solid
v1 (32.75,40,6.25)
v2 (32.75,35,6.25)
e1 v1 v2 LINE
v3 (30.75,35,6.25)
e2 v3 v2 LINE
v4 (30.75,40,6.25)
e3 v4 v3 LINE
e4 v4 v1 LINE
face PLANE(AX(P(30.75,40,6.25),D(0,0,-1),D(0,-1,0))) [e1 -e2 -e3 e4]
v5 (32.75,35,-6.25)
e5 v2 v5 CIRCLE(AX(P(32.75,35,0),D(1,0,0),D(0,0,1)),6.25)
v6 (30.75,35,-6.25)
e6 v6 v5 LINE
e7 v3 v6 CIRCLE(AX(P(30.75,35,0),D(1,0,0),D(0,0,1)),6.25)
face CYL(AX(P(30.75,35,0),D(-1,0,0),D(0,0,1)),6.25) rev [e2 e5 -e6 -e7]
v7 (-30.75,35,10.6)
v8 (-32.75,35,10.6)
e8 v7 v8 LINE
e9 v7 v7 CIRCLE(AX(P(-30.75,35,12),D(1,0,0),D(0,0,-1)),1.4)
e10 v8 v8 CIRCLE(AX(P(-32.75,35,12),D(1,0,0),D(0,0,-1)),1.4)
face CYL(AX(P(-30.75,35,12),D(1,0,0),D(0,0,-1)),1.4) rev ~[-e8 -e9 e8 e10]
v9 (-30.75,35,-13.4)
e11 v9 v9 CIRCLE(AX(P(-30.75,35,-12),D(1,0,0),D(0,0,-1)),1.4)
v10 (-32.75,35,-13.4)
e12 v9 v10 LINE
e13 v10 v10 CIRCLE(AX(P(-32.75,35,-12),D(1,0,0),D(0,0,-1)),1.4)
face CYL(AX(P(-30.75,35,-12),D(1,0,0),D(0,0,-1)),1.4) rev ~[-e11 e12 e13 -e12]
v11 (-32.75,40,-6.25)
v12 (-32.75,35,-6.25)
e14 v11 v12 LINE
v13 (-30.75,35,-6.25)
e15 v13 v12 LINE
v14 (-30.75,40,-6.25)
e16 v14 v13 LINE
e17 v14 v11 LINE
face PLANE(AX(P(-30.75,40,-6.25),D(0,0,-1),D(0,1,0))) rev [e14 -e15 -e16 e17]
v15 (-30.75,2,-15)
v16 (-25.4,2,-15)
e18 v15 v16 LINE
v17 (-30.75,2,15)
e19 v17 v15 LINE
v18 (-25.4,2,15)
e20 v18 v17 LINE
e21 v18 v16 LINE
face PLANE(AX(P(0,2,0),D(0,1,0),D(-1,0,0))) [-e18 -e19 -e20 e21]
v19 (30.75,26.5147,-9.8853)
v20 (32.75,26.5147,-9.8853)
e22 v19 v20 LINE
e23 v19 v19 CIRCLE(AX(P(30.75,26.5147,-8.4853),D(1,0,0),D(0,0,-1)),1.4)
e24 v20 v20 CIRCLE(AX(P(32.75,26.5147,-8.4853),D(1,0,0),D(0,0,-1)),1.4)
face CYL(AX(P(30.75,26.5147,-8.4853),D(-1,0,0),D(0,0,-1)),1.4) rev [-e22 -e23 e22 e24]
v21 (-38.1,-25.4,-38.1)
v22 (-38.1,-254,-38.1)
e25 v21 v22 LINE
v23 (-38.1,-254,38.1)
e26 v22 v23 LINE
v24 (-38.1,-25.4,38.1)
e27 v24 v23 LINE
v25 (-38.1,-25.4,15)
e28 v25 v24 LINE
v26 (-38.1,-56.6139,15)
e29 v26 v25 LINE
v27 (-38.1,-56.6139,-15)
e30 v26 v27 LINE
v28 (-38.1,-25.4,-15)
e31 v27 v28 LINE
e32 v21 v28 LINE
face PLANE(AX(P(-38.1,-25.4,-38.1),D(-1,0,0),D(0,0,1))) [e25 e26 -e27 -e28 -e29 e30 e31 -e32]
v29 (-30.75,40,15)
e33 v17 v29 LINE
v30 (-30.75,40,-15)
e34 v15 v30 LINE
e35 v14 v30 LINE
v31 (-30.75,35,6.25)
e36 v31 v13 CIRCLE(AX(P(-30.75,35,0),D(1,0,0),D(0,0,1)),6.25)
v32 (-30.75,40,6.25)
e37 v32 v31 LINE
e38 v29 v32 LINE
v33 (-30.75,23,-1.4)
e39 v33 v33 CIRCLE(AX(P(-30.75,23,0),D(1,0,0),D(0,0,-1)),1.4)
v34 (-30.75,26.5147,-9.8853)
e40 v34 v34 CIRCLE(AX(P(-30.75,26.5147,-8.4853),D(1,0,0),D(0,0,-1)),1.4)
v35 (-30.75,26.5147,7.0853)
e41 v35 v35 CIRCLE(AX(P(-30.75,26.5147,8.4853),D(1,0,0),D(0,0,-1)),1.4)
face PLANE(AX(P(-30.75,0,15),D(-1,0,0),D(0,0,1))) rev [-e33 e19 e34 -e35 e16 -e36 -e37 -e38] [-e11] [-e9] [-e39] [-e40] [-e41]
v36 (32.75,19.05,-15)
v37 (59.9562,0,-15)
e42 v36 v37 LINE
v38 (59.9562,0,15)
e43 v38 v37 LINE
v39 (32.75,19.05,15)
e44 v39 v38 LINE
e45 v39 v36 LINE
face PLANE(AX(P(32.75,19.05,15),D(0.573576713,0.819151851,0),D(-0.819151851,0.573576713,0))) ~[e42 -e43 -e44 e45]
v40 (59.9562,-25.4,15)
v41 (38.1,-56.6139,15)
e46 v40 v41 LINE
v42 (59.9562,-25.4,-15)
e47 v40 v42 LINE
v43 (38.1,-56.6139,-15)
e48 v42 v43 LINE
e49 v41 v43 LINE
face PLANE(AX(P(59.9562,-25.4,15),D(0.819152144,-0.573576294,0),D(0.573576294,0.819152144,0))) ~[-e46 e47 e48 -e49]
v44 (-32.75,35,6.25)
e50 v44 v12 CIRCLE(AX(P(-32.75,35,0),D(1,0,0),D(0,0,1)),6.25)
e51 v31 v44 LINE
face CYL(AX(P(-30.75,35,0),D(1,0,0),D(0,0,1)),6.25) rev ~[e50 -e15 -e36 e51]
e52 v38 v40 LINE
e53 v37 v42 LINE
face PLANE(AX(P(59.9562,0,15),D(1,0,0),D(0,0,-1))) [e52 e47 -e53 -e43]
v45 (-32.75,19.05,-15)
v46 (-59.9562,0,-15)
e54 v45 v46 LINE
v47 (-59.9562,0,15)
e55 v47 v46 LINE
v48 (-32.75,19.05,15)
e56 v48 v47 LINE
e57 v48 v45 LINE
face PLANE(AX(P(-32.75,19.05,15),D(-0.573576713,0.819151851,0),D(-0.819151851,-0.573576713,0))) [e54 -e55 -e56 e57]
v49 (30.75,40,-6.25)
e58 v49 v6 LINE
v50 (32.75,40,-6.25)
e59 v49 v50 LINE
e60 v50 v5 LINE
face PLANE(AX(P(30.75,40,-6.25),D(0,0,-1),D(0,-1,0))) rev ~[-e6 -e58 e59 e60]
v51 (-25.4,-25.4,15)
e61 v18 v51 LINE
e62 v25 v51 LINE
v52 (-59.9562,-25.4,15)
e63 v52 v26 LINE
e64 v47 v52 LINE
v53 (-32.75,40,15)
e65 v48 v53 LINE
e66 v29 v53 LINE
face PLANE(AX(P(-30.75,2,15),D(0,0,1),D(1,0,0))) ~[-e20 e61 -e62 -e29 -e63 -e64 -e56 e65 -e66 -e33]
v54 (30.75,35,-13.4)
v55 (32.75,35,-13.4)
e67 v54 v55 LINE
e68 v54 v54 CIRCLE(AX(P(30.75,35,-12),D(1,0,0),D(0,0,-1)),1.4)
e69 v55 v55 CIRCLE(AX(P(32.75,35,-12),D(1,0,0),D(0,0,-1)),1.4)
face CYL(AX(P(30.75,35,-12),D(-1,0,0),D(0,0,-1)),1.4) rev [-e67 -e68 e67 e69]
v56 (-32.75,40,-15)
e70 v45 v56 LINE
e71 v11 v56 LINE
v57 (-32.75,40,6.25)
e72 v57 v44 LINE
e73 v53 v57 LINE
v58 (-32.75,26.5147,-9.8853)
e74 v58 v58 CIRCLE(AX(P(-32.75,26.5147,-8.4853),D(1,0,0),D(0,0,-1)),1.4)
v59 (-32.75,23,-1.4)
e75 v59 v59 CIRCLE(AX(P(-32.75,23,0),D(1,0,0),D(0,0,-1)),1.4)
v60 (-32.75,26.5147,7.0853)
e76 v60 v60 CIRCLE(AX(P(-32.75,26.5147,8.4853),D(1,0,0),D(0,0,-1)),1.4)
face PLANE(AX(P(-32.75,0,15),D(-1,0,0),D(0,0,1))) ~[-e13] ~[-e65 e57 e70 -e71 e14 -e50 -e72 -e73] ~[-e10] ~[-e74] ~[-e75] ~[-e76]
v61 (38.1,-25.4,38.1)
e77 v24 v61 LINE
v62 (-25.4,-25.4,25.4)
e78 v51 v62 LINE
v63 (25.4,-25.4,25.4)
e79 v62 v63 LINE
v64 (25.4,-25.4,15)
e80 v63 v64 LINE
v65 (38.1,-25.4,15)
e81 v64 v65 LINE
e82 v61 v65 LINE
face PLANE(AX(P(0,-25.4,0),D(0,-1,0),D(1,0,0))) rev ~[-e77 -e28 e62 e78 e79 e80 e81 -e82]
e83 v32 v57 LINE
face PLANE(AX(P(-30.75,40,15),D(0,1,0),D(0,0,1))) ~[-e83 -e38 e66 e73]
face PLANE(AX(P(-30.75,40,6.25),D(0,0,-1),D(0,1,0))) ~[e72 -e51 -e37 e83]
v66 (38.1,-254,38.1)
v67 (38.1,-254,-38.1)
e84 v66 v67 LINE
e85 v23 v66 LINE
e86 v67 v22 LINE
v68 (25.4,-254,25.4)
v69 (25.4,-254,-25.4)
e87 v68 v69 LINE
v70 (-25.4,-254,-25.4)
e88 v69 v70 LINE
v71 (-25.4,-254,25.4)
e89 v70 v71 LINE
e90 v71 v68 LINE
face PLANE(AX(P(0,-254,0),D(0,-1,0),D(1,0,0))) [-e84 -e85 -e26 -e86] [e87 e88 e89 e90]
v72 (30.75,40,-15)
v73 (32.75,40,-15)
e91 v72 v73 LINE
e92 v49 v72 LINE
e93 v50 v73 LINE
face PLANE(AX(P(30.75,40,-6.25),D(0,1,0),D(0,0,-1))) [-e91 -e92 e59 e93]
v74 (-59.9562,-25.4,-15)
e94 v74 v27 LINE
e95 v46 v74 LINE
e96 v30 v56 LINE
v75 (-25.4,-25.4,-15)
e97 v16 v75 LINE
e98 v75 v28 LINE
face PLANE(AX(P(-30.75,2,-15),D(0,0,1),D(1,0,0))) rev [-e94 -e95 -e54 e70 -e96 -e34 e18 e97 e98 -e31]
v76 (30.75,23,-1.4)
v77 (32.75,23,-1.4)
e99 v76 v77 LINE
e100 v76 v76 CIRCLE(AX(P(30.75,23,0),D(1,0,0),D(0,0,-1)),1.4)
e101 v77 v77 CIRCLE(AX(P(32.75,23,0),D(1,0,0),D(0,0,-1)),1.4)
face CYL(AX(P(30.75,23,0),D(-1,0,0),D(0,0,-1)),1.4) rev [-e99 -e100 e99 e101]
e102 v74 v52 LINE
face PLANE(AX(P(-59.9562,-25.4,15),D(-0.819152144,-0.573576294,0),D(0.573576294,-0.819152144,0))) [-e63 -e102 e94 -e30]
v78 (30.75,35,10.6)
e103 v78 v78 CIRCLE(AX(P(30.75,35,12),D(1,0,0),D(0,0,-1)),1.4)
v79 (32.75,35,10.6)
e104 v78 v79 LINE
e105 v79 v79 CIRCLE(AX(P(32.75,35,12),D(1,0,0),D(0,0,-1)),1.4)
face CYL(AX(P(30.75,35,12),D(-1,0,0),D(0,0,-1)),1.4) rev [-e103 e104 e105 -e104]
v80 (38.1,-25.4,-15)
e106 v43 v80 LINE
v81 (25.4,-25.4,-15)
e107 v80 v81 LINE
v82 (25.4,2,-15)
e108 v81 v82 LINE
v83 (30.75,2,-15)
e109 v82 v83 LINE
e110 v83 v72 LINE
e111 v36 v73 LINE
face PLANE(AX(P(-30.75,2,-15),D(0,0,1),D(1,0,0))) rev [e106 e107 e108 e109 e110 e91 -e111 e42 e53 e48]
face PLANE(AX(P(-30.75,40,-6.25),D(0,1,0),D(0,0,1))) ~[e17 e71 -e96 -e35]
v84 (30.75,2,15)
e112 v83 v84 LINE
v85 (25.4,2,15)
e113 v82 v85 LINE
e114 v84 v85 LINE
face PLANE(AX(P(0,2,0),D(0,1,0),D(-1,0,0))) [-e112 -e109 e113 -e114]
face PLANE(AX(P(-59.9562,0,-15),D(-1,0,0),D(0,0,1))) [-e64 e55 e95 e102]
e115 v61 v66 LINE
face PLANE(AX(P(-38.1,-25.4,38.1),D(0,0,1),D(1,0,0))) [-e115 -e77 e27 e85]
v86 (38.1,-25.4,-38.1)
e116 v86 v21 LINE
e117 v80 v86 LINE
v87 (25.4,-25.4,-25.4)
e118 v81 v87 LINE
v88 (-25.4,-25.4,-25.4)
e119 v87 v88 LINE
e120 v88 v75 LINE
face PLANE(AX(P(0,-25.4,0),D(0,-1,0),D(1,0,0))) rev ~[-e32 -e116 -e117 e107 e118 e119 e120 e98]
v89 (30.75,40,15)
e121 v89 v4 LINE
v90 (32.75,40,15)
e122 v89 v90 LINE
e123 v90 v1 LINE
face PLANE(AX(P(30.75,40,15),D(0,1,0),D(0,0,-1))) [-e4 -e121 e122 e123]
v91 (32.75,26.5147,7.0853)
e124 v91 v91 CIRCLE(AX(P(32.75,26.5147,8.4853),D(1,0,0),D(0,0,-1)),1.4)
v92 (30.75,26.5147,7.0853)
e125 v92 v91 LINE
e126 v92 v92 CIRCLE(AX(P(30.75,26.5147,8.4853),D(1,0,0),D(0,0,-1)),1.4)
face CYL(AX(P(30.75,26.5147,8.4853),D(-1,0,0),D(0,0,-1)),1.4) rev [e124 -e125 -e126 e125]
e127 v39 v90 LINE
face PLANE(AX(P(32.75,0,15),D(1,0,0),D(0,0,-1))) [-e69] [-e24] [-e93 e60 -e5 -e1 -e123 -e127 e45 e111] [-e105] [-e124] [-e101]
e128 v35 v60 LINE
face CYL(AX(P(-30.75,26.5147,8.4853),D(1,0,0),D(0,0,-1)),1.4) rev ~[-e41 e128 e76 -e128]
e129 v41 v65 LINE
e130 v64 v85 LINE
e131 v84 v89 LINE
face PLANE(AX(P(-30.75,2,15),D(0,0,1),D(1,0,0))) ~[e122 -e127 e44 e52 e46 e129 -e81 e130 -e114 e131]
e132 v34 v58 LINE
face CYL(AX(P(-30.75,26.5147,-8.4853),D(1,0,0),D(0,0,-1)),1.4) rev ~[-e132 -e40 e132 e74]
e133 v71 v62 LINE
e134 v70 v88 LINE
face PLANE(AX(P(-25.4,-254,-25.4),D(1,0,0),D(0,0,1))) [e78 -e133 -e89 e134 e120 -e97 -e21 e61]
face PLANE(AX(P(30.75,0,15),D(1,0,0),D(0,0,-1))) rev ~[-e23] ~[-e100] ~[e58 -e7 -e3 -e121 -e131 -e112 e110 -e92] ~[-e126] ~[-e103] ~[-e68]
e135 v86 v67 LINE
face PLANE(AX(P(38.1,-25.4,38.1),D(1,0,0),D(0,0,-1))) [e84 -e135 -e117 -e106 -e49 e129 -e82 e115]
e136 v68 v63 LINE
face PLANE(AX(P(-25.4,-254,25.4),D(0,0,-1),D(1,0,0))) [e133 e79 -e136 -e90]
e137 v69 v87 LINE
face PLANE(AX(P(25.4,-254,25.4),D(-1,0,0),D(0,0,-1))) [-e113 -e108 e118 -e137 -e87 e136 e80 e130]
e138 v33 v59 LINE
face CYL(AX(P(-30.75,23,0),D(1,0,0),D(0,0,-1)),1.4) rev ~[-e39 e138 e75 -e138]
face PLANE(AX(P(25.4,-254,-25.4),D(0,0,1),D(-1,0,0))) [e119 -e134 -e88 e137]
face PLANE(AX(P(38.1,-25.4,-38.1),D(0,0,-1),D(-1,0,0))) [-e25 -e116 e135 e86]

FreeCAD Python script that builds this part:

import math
import FreeCAD as App
import Part
import Sketcher
from FreeCAD import Vector
Q = App.Units.Quantity

doc = App.newDocument("Part")
body = doc.addObject("PartDesign::Body", "Body")

sketch1 = body.newObject("Sketcher::SketchObject", "Sketch")
sketch1.AttachmentSupport = (doc.getObject("XZ_Plane"), [""])
sketch1.MapMode = "FlatFace"
sketch1.addGeometry([
    Part.LineSegment(Vector(31, -15, 0), Vector(-31, -15, 0)),
    Part.LineSegment(Vector(-31, -15, 0), Vector(-31, 15, 0)),
    Part.LineSegment(Vector(-31, 15, 0), Vector(31, 15, 0)),
    Part.LineSegment(Vector(31, 15, 0), Vector(31, -15, 0)),
], False)
sketch1.addConstraint([
    Sketcher.Constraint("Coincident", 0, 2, 1, 1),
    Sketcher.Constraint("Coincident", 1, 2, 2, 1),
    Sketcher.Constraint("Coincident", 2, 2, 3, 1),
    Sketcher.Constraint("Coincident", 3, 2, 0, 1),
    Sketcher.Constraint("Horizontal", 0),
    Sketcher.Constraint("Vertical", 1),
    Sketcher.Constraint("Horizontal", 2),
    Sketcher.Constraint("Vertical", 3),
    Sketcher.Constraint("Symmetric", 0, 2, 2, 2, -1, 1),
    Sketcher.Constraint("DistanceY", 1, 1, 1, 2, 30.0),
    Sketcher.Constraint("DistanceX", 0, 2, 0, 1, 61.5),
])
pad1 = body.newObject("PartDesign::Pad", "Pad")
pad1.Profile = sketch1
pad1.Length = 2
pad1.Reversed = True

sketch2 = body.newObject("Sketcher::SketchObject", "Sketch001")
sketch2.AttachmentSupport = (doc.getObject("YZ_Plane"), [""])
sketch2.MapMode = "FlatFace"
sketch2.AttachmentOffset = App.Placement(Vector(0, 0, 30.75), App.Rotation())
sketch2.addGeometry([
    Part.LineSegment(Vector(40, 15, 0), Vector(0, 15, 0)),
    Part.LineSegment(Vector(0, 15, 0), Vector(0, -15, 0)),
    Part.LineSegment(Vector(0, -15, 0), Vector(40, -15, 0)),
    Part.LineSegment(Vector(40, -15, 0), Vector(40, -6.2, 0)),
    Part.LineSegment(Vector(40, -6.2, 0), Vector(35, -6.2, 0)),
    Part.ArcOfCircle(Part.Circle(Vector(35, 0, 0), Vector(0, 0, 1), 6.2), math.radians(90), math.radians(270)),
    Part.LineSegment(Vector(35, 6.2, 0), Vector(40, 6.2, 0)),
    Part.LineSegment(Vector(40, 6.2, 0), Vector(40, 15, 0)),
    Part.Circle(Vector(26.5, 8.5, 0), Vector(0, 0, 1), 1.4),
    Part.Circle(Vector(35, 12, 0), Vector(0, 0, 1), 1.4),
    Part.Circle(Vector(23, 0, 0), Vector(0, 0, 1), 1.4),
    Part.Circle(Vector(26.5, -8.5, 0), Vector(0, 0, 1), 1.4),
    Part.Circle(Vector(35, -12, 0), Vector(0, 0, 1), 1.4),
], False)
sketch2.addConstraint([
    Sketcher.Constraint("Coincident", 0, 2, 1, 1),
    Sketcher.Constraint("Coincident", 1, 2, 2, 1),
    Sketcher.Constraint("Coincident", 2, 2, 3, 1),
    Sketcher.Constraint("Coincident", 3, 2, 4, 1),
    Sketcher.Constraint("Tangent", 4, 2, 5, 2),
    Sketcher.Constraint("Tangent", 5, 1, 6, 1),
    Sketcher.Constraint("Coincident", 6, 2, 7, 1),
    Sketcher.Constraint("Coincident", 7, 2, 0, 1),
    Sketcher.Constraint("Horizontal", 0),
    Sketcher.Constraint("Vertical", 1),
    Sketcher.Constraint("Horizontal", 2),
    Sketcher.Constraint("Vertical", 3),
    Sketcher.Constraint("Horizontal", 4),
    Sketcher.Constraint("Horizontal", 6),
    Sketcher.Constraint("Vertical", 7),
    Sketcher.Constraint("Equal", 8, 9),
    Sketcher.Constraint("Equal", 9, 10),
    Sketcher.Constraint("Equal", 10, 11),
    Sketcher.Constraint("Equal", 11, 12),
    Sketcher.Constraint("Symmetric", 0, 2, 1, 2, -1, 1),
    Sketcher.Constraint("Symmetric", 8, 3, 11, 3, -1),
    Sketcher.Constraint("Symmetric", 9, 3, 12, 3, -1),
    Sketcher.Constraint("Symmetric", 3, 2, 6, 2, -1),
    Sketcher.Constraint("PointOnObject", 10, 3, -1),
    Sketcher.Constraint("Vertical", 5, 3, 9, 3),
    Sketcher.Constraint("Diameter", 8, 2.8),
    Sketcher.Constraint("DistanceX", 0, 2, 0, 1, 40.0),
    Sketcher.Constraint("Radius", 5, 6.25),
    Sketcher.Constraint("DistanceX", -1, 1, 5, 3, 35.0),
    Sketcher.Constraint("DistanceY", 12, 3, 9, 3, 24.0),
    Sketcher.Constraint("DistanceY", 1, 2, 1, 1, 30.0),
    Sketcher.Constraint("DistanceX", -1, 1, 10, 3, 23.0),
    Sketcher.Constraint("DistanceX", -1, 1, 8, 3, 26.5147),
    Sketcher.Constraint("DistanceY", -1, 1, 8, 3, 8.4853),
])
pad2 = body.newObject("PartDesign::Pad", "Pad001")
pad2.Profile = sketch2
pad2.Length = 2
doc.recompute()

mirrored = body.newObject("PartDesign::Mirrored", "Mirrored")
mirrored.Originals = [pad2]
mirrored.MirrorPlane = (doc.getObject("YZ_Plane"), [""])
body.Tip = mirrored

sketch3 = body.newObject("Sketcher::SketchObject", "Sketch002")
sketch3.AttachmentSupport = (doc.getObject("XY_Plane"), [""])
sketch3.MapMode = "FlatFace"
sketch3.AttachmentOffset = App.Placement(Vector(0, 0, 15), App.Rotation())
sketch3.addGeometry([
    Part.LineSegment(Vector(-33, 0, 0), Vector(-33, 19, 0)),
    Part.LineSegment(Vector(-33, 19, 0), Vector(-60, 0, 0)),
    Part.LineSegment(Vector(-60, 0, 0), Vector(-33, 0, 0)),
], False)
sketch3.addConstraint([
    Sketcher.Constraint("Coincident", 0, 2, 1, 1),
    Sketcher.Constraint("Coincident", 1, 2, 2, 1),
    Sketcher.Constraint("Coincident", 2, 2, 0, 1),
    Sketcher.Constraint("Vertical", 0),
    Sketcher.Constraint("Horizontal", 2),
    Sketcher.Constraint("PointOnObject", 1, 2, -1),
    Sketcher.Constraint("DistanceY", 0, 1, 0, 2, 19.05),
    Sketcher.Constraint("Angle", 1, Q("-145 deg")),
    Sketcher.Constraint("DistanceX", 0, 2, -1, 1, 32.75),
])
pad3 = body.newObject("PartDesign::Pad", "Pad002")
pad3.Profile = sketch3
pad3.Length = 30
pad3.Reversed = True
doc.recompute()

mirrored2 = body.newObject("PartDesign::Mirrored", "Mirrored001")
mirrored2.Originals = [pad3]
mirrored2.MirrorPlane = (doc.getObject("YZ_Plane"), [""])
body.Tip = mirrored2

sketch4 = body.newObject("Sketcher::SketchObject", "Sketch003")
sketch4.AttachmentSupport = (doc.getObject("XZ_Plane"), [""])
sketch4.MapMode = "FlatFace"
sketch4.addGeometry([
    Part.LineSegment(Vector(60, 15, 0), Vector(-60, 15, 0)),
    Part.LineSegment(Vector(-60, 15, 0), Vector(-60, -15, 0)),
    Part.LineSegment(Vector(-60, -15, 0), Vector(60, -15, 0)),
    Part.LineSegment(Vector(60, -15, 0), Vector(60, 15, 0)),
], False)
sketch4.addConstraint([
    Sketcher.Constraint("Coincident", 0, 2, 1, 1),
    Sketcher.Constraint("Coincident", 1, 2, 2, 1),
    Sketcher.Constraint("Coincident", 2, 2, 3, 1),
    Sketcher.Constraint("Coincident", 3, 2, 0, 1),
    Sketcher.Constraint("Horizontal", 0),
    Sketcher.Constraint("Vertical", 1),
    Sketcher.Constraint("Horizontal", 2),
    Sketcher.Constraint("Vertical", 3),
    Sketcher.Constraint("Symmetric", 0, 2, 2, 2, -1, 1),
    Sketcher.Constraint("DistanceY", 1, 2, 1, 1, 30.0),
    Sketcher.Constraint("DistanceX", 0, 2, 0, 1, 119.9124),
])
pad4 = body.newObject("PartDesign::Pad", "Pad003")
pad4.Profile = sketch4
pad4.Length = 25.4

sketch5 = body.newObject("Sketcher::SketchObject", "Sketch004")
sketch5.AttachmentSupport = (doc.getObject("XZ_Plane"), [""])
sketch5.MapMode = "FlatFace"
sketch5.AttachmentOffset = App.Placement(Vector(0, 0, 25.4), App.Rotation())
sketch5.addGeometry([
    Part.LineSegment(Vector(38, 38, 0), Vector(-38, 38, 0)),
    Part.LineSegment(Vector(-38, 38, 0), Vector(-38, -38, 0)),
    Part.LineSegment(Vector(-38, -38, 0), Vector(38, -38, 0)),
    Part.LineSegment(Vector(38, -38, 0), Vector(38, 38, 0)),
], False)
sketch5.addConstraint([
    Sketcher.Constraint("Coincident", 0, 2, 1, 1),
    Sketcher.Constraint("Coincident", 1, 2, 2, 1),
    Sketcher.Constraint("Coincident", 2, 2, 3, 1),
    Sketcher.Constraint("Coincident", 3, 2, 0, 1),
    Sketcher.Constraint("Horizontal", 0),
    Sketcher.Constraint("Vertical", 1),
    Sketcher.Constraint("Horizontal", 2),
    Sketcher.Constraint("Vertical", 3),
    Sketcher.Constraint("Symmetric", 0, 2, 2, 2, -1, 1),
    Sketcher.Constraint("Equal", 2, 1),
    Sketcher.Constraint("DistanceX", 0, 2, 0, 1, 76.2),
])
pad5 = body.newObject("PartDesign::Pad", "Pad004")
pad5.Profile = sketch5
pad5.Length = 228.6

sketch6 = body.newObject("Sketcher::SketchObject", "Sketch005")
sketch6.AttachmentSupport = (doc.getObject("XY_Plane"), [""])
sketch6.MapMode = "FlatFace"
sketch6.AttachmentOffset = App.Placement(Vector(0, 0, 15), App.Rotation())
sketch6.addGeometry([
    Part.LineSegment(Vector(-38, -25, 0), Vector(-60, -25, 0)),
    Part.LineSegment(Vector(-60, -25, 0), Vector(-38, -57, 0)),
    Part.LineSegment(Vector(-38, -57, 0), Vector(-38, -25, 0)),
], False)
sketch6.addConstraint([
    Sketcher.Constraint("Coincident", 0, 2, 1, 1),
    Sketcher.Constraint("Coincident", 1, 2, 2, 1),
    Sketcher.Constraint("Coincident", 2, 2, 0, 1),
    Sketcher.Constraint("Horizontal", 0),
    Sketcher.Constraint("Vertical", 2),
    Sketcher.Constraint("Angle", 1, Q("-55 deg")),
    Sketcher.Constraint("DistanceY", 0, 2, -1, 1, 25.4),
    Sketcher.Constraint("DistanceX", 1, 2, -1, 1, 38.1),
    Sketcher.Constraint("DistanceY", 2, 1, 2, 2, 31.214),
])
pad6 = body.newObject("PartDesign::Pad", "Pad005")
pad6.Profile = sketch6
pad6.Length = 30
pad6.Reversed = True
doc.recompute()

mirrored3 = body.newObject("PartDesign::Mirrored", "Mirrored002")
mirrored3.Originals = [pad6]
mirrored3.MirrorPlane = (doc.getObject("YZ_Plane"), [""])
body.Tip = mirrored3

sketch7 = body.newObject("Sketcher::SketchObject", "Sketch006")
sketch7.AttachmentSupport = (doc.getObject("XZ_Plane"), [""])
sketch7.MapMode = "FlatFace"
sketch7.AttachmentOffset = App.Placement(Vector(0, 0, 254), App.Rotation())
sketch7.addGeometry([
    Part.LineSegment(Vector(-25, -25, 0), Vector(25, -25, 0)),
    Part.LineSegment(Vector(25, -25, 0), Vector(25, 25, 0)),
    Part.LineSegment(Vector(25, 25, 0), Vector(-25, 25, 0)),
    Part.LineSegment(Vector(-25, 25, 0), Vector(-25, -25, 0)),
], False)
sketch7.addConstraint([
    Sketcher.Constraint("Coincident", 0, 2, 1, 1),
    Sketcher.Constraint("Coincident", 1, 2, 2, 1),
    Sketcher.Constraint("Coincident", 2, 2, 3, 1),
    Sketcher.Constraint("Coincident", 3, 2, 0, 1),
    Sketcher.Constraint("Horizontal", 0),
    Sketcher.Constraint("Vertical", 1),
    Sketcher.Constraint("Horizontal", 2),
    Sketcher.Constraint("Vertical", 3),
    Sketcher.Constraint("Symmetric", 0, 2, 2, 2, -1, 1),
    Sketcher.Constraint("Equal", 2, 1),
    Sketcher.Constraint("DistanceX", 0, 1, 0, 2, 50.8),
])
pocket1 = body.newObject("PartDesign::Pocket", "Pocket")
pocket1.Profile = sketch7
pocket1.Length = 260.1875

doc.recompute()
